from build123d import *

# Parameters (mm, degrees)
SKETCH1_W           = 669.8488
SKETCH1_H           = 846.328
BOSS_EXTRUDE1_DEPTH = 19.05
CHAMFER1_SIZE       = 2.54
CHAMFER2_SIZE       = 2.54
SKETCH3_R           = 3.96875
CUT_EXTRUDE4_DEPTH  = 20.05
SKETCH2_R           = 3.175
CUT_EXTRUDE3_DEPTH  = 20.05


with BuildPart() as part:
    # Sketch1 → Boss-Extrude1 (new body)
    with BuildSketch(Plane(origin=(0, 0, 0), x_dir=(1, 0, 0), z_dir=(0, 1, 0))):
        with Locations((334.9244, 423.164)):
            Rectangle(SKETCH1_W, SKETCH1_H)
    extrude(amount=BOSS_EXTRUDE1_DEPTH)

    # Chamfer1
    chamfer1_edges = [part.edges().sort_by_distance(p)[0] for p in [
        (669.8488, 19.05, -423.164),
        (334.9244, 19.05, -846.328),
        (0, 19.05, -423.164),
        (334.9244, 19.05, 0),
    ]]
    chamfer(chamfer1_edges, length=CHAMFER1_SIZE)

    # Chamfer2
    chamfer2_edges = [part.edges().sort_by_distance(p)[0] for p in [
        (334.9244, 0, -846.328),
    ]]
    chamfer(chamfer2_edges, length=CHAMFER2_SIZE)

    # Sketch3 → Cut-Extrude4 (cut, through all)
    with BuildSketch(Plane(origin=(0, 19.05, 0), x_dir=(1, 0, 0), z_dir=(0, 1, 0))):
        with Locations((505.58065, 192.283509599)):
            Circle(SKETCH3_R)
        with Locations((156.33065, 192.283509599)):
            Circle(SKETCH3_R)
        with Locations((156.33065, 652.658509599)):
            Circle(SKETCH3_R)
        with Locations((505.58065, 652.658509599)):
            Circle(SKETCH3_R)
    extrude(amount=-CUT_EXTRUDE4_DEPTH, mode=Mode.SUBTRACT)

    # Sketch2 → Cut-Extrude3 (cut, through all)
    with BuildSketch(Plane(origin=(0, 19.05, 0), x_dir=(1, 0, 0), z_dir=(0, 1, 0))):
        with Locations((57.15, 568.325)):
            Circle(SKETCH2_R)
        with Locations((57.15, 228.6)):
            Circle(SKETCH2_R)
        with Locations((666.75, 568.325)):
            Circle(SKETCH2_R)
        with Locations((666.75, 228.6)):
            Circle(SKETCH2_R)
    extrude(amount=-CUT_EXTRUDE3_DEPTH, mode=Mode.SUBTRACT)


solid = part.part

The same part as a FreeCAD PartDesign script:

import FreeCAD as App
import Part
import Sketcher
from FreeCAD import Vector
Q = App.Units.Quantity


def edges_at(feature, points):
    """Names of the edges that pass closest to the given points."""
    edges = feature.Shape.Edges
    near = lambda p: min(range(len(edges)), key=lambda i: edges[i].distToShape(Part.Vertex(*p))[0])
    return sorted({f"Edge{near(p) + 1}" for p in points})

doc = App.newDocument("Part")
body = doc.addObject("PartDesign::Body", "Body")

# Sketch on XZ plane
sketch1 = body.newObject("Sketcher::SketchObject", "Sketch")
sketch1.AttachmentSupport = (doc.getObject("XZ_Plane"), [""])
sketch1.MapMode = "FlatFace"
sketch1.addGeometry([
    Part.LineSegment(Vector(0, -846, 0), Vector(0, 0, 0)),
    Part.LineSegment(Vector(0, 0, 0), Vector(670, 0, 0)),
    Part.LineSegment(Vector(670, 0, 0), Vector(670, -846, 0)),
    Part.LineSegment(Vector(670, -846, 0), Vector(0, -846, 0)),
], False)
sketch1.addConstraint([
    Sketcher.Constraint("Coincident", 0, 2, 1, 1),
    Sketcher.Constraint("Coincident", 1, 2, 2, 1),
    Sketcher.Constraint("Coincident", 2, 2, 3, 1),
    Sketcher.Constraint("Coincident", 3, 2, 0, 1),
    Sketcher.Constraint("Vertical", 0),
    Sketcher.Constraint("Horizontal", 1),
    Sketcher.Constraint("Vertical", 2),
    Sketcher.Constraint("Horizontal", 3),
    Sketcher.Constraint("Coincident", 0, 2, -1, 1),
    Sketcher.Constraint("DistanceY", 0, 1, 0, 2, Q("33.32 in")),
    Sketcher.Constraint("DistanceX", 1, 1, 1, 2, Q("26.372 in")),
])
pad1 = body.newObject("PartDesign::Pad", "Pad")
pad1.Profile = sketch1
pad1.Length = Q("0.75 in")
pad1.Reversed = True
doc.recompute()

chamfer = body.newObject("PartDesign::Chamfer", "Chamfer")
chamfer.Base = (pad1, edges_at(pad1, [
    (669.849, 19.05, -423.164),
    (334.924, 19.05, -846.328),
    (0, 19.05, -423.164),
    (334.924, 19.05, 0),
]))
chamfer.Size = Q("0.1 in")
doc.recompute()

chamfer2 = body.newObject("PartDesign::Chamfer", "Chamfer001")
chamfer2.Base = (chamfer, edges_at(chamfer, [(334.924, 0, -846.328)]))
chamfer2.Size = Q("0.1 in")

# Sketch on XZ plane
sketch2 = body.newObject("Sketcher::SketchObject", "Sketch001")
sketch2.AttachmentSupport = (doc.getObject("XZ_Plane"), [""])
sketch2.MapMode = "FlatFace"
sketch2.AttachmentOffset = App.Placement(Vector(0, 0, -0.75 * 25.4), App.Rotation())
sketch2.addGeometry([
    Part.Circle(Vector(505.6, -192.3, 0), Vector(0, 0, 1), 4),
    Part.Circle(Vector(156.3, -192.3, 0), Vector(0, 0, 1), 4),
    Part.Circle(Vector(156.3, -652.7, 0), Vector(0, 0, 1), 4),
    Part.Circle(Vector(505.6, -652.7, 0), Vector(0, 0, 1), 4),
], False)
sketch2.addConstraint([
    Sketcher.Constraint("Equal", 0, 1),
    Sketcher.Constraint("Equal", 1, 2),
    Sketcher.Constraint("Equal", 2, 3),
    Sketcher.Constraint("Horizontal", 0, 3, 1, 3),
    Sketcher.Constraint("Horizontal", 2, 3, 3, 3),
    Sketcher.Constraint("Vertical", 1, 3, 2, 3),
    Sketcher.Constraint("Vertical", 0, 3, 3, 3),
    Sketcher.Constraint("Diameter", 0, Q("0.3125 in")),
    Sketcher.Constraint("DistanceX", 1, 3, 0, 3, Q("13.75 in")),
    Sketcher.Constraint("DistanceY", 2, 3, 1, 3, Q("18.125 in")),
    Sketcher.Constraint("DistanceX", -1, 1, 0, 3, Q("505.58065 mm")),
    Sketcher.Constraint("DistanceY", 0, 3, -1, 1, Q("192.28351 mm")),
])
pocket1 = body.newObject("PartDesign::Pocket", "Pocket")
pocket1.Profile = sketch2
pocket1.Type = "ThroughAll"
pocket1.Reversed = True

# Sketch on XZ plane
sketch3 = body.newObject("Sketcher::SketchObject", "Sketch002")
sketch3.AttachmentSupport = (doc.getObject("XZ_Plane"), [""])
sketch3.MapMode = "FlatFace"
sketch3.AttachmentOffset = App.Placement(Vector(0, 0, -0.75 * 25.4), App.Rotation())
sketch3.addGeometry([
    Part.Circle(Vector(57.1, -568.3, 0), Vector(0, 0, 1), 3.2),
    Part.Circle(Vector(57.1, -228.6, 0), Vector(0, 0, 1), 3.2),
    Part.Circle(Vector(666.8, -568.3, 0), Vector(0, 0, 1), 3.2),
    Part.Circle(Vector(666.8, -228.6, 0), Vector(0, 0, 1), 3.2),
], False)
sketch3.addConstraint([
    Sketcher.Constraint("Equal", 0, 1),
    Sketcher.Constraint("Equal", 1, 2),
    Sketcher.Constraint("Equal", 2, 3),
    Sketcher.Constraint("Horizontal", 0, 3, 2, 3),
    Sketcher.Constraint("Horizontal", 1, 3, 3, 3),
    Sketcher.Constraint("Vertical", 0, 3, 1, 3),
    Sketcher.Constraint("Vertical", 2, 3, 3, 3),
    Sketcher.Constraint("Diameter", 0, Q("0.25 in")),
    Sketcher.Constraint("DistanceY", 1, 3, -1, 1, Q("9 in")),
    Sketcher.Constraint("DistanceX", 0, 3, 2, 3, Q("24 in")),
    Sketcher.Constraint("DistanceX", -1, 1, 0, 3, Q("2.25 in")),
    Sketcher.Constraint("DistanceY", 0, 3, -1, 1, Q("22.375 in")),
])
pocket2 = body.newObject("PartDesign::Pocket", "Pocket001")
pocket2.Profile = sketch3
pocket2.Type = "ThroughAll"
pocket2.Reversed = True

doc.recompute()
